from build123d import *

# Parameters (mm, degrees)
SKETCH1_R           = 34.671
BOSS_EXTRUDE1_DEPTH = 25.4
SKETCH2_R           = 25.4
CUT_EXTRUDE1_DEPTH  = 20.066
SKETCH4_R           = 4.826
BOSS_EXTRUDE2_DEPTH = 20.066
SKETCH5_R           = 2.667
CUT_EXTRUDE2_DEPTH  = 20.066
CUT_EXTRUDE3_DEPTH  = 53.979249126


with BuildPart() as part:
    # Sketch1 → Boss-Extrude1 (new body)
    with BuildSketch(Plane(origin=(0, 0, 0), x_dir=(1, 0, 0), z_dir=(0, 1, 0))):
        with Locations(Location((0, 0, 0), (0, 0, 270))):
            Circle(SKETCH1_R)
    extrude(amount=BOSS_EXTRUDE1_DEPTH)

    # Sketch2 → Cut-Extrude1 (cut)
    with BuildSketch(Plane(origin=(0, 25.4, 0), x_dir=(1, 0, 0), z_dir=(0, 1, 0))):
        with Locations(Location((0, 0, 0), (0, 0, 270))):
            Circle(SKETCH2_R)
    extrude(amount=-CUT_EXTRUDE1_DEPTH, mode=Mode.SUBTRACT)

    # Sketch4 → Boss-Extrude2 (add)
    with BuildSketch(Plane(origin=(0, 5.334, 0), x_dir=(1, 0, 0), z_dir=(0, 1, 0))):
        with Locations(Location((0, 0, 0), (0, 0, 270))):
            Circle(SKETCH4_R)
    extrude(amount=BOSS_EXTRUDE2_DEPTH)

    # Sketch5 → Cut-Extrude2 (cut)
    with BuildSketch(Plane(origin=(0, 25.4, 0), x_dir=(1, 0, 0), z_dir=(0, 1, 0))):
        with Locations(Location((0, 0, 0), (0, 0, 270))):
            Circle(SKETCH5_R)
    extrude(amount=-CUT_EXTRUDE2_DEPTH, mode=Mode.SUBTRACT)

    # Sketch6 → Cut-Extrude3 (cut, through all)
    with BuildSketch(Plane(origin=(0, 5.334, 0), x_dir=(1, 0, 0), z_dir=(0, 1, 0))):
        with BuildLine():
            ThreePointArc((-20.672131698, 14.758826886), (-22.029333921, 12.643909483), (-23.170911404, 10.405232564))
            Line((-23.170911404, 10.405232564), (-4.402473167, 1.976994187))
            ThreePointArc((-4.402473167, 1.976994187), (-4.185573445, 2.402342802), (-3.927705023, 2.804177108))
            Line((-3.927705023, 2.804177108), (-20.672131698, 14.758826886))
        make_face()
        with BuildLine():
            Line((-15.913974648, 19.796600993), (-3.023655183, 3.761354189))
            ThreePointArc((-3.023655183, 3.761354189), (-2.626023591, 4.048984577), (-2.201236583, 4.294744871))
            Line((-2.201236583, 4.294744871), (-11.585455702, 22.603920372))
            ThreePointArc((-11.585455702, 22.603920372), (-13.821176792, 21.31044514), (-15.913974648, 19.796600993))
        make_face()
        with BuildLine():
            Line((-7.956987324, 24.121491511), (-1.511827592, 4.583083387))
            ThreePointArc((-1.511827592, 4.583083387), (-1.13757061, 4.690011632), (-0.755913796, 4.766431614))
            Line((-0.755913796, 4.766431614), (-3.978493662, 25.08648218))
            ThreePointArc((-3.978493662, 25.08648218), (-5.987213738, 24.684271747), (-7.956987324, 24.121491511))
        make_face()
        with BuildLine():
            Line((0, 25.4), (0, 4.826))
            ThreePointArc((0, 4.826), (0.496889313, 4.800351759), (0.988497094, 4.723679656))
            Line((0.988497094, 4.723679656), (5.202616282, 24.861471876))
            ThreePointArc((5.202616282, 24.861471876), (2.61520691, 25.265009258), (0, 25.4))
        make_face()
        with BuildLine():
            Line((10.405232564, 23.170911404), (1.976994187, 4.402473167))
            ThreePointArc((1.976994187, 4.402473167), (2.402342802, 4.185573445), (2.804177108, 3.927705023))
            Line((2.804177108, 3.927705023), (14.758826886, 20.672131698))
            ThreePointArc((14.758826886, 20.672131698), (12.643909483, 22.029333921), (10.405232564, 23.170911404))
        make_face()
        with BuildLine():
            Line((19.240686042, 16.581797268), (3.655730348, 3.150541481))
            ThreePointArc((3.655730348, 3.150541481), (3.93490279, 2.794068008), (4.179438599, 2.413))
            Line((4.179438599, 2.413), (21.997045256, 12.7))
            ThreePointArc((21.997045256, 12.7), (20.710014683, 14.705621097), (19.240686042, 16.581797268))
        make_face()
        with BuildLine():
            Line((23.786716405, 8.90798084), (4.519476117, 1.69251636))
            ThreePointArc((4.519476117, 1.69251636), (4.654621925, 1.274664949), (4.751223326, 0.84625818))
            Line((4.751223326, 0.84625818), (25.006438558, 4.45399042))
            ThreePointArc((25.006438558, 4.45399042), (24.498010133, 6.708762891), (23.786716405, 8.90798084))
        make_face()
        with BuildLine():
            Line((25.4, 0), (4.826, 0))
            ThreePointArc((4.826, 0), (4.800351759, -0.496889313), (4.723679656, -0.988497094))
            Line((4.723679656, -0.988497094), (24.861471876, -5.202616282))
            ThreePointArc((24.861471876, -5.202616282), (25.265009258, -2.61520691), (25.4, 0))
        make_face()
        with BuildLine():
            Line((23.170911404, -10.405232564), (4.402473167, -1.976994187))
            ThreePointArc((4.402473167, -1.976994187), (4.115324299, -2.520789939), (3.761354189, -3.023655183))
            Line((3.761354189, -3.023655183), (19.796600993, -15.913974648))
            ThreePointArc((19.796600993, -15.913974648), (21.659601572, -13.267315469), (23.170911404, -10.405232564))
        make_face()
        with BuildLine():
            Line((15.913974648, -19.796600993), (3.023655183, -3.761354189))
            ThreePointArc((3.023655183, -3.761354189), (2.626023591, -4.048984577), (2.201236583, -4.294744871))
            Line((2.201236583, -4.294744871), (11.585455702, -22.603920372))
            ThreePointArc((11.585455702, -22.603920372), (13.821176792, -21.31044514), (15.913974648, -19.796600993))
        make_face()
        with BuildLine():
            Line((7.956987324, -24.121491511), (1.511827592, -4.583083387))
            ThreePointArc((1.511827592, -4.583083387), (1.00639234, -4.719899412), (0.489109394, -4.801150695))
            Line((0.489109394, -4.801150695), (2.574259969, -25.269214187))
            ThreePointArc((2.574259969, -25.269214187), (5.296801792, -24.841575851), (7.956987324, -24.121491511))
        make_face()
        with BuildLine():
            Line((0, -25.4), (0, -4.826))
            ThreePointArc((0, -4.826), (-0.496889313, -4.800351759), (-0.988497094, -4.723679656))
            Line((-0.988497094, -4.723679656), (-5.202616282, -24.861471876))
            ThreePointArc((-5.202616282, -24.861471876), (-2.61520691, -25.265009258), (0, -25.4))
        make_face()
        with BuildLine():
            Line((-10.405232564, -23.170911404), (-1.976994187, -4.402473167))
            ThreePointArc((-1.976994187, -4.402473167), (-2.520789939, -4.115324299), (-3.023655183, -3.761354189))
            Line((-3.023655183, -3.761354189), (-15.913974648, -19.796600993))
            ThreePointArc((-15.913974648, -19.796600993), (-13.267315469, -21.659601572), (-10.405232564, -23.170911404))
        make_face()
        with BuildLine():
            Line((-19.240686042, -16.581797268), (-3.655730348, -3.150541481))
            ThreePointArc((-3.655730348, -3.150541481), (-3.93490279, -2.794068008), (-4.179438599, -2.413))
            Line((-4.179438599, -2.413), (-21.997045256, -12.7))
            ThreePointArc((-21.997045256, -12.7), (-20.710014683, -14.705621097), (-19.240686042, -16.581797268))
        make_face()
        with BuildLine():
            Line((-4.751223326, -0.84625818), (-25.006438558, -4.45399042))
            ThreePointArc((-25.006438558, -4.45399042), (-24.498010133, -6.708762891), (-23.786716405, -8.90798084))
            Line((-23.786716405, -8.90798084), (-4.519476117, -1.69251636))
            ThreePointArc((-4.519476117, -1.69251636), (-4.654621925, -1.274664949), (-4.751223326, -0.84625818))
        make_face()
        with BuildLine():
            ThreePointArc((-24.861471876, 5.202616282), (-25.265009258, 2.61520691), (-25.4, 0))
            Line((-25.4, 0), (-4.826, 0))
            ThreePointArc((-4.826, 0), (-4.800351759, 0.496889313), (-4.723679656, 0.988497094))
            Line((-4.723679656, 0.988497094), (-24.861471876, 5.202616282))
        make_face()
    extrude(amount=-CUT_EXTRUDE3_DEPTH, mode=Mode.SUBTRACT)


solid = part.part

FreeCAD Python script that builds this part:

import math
import FreeCAD as App
import Part
import Sketcher

V = App.Vector
Q = App.Units.Quantity

doc = App.newDocument("Part")
body = doc.addObject("PartDesign::Body", "Body")

# Sketch on XZ plane
sketch1 = body.newObject("Sketcher::SketchObject", "Sketch")
sketch1.AttachmentSupport = (doc.getObject("XZ_Plane"), [""])
sketch1.MapMode = "FlatFace"
sketch1.addGeometry(Part.Circle(V(0, 0, 0), V(0, 0, 1), 34.671), False)
sketch1.addConstraint([
    Sketcher.Constraint("Coincident", 0, 3, -1, 1),
    Sketcher.Constraint("Diameter", 0, Q("2.73 in")),
])
pad1 = body.newObject("PartDesign::Pad", "Pad")
pad1.Profile = sketch1
pad1.Length = Q("1 in")
pad1.Reversed = True

# Sketch on XZ plane
sketch2 = body.newObject("Sketcher::SketchObject", "Sketch001")
sketch2.AttachmentSupport = (doc.getObject("XZ_Plane"), [""])
sketch2.MapMode = "FlatFace"
sketch2.AttachmentOffset = App.Placement(V(0, 0, -1 * 25.4), App.Rotation())
sketch2.addGeometry(Part.Circle(V(0, 0, 0), V(0, 0, 1), 25.4), False)
sketch2.addConstraint([
    Sketcher.Constraint("Coincident", 0, 3, -1, 1),
    Sketcher.Constraint("Diameter", 0, Q("2 in")),
])
pocket1 = body.newObject("PartDesign::Pocket", "Pocket")
pocket1.Profile = sketch2
pocket1.Length = Q("0.79 in")
pocket1.Reversed = True

# Sketch on XZ plane
sketch3 = body.newObject("Sketcher::SketchObject", "Sketch002")
sketch3.AttachmentSupport = (doc.getObject("XZ_Plane"), [""])
sketch3.MapMode = "FlatFace"
sketch3.AttachmentOffset = App.Placement(V(0, 0, -0.21 * 25.4), App.Rotation())
sketch3.addGeometry(Part.Circle(V(0, 0, 0), V(0, 0, 1), 4.826), False)
sketch3.addConstraint([
    Sketcher.Constraint("Coincident", 0, 3, -1, 1),
    Sketcher.Constraint("Diameter", 0, Q("0.38 in")),
])
pad2 = body.newObject("PartDesign::Pad", "Pad001")
pad2.Profile = sketch3
pad2.Length = Q("0.79 in")
pad2.Reversed = True

# Sketch on XZ plane
sketch4 = body.newObject("Sketcher::SketchObject", "Sketch003")
sketch4.AttachmentSupport = (doc.getObject("XZ_Plane"), [""])
sketch4.MapMode = "FlatFace"
sketch4.AttachmentOffset = App.Placement(V(0, 0, -1 * 25.4), App.Rotation())
sketch4.addGeometry(Part.Circle(V(0, 0, 0), V(0, 0, 1), 2.667), False)
sketch4.addConstraint([
    Sketcher.Constraint("Coincident", 0, 3, -1, 1),
    Sketcher.Constraint("Diameter", 0, Q("0.21 in")),
])
pocket2 = body.newObject("PartDesign::Pocket", "Pocket001")
pocket2.Profile = sketch4
pocket2.Length = Q("0.79 in")
pocket2.Reversed = True

# Sketch on XZ plane
sketch5 = body.newObject("Sketcher::SketchObject", "Sketch004")
sketch5.AttachmentSupport = (doc.getObject("XZ_Plane"), [""])
sketch5.MapMode = "FlatFace"
sketch5.AttachmentOffset = App.Placement(V(0, 0, -0.21 * 25.4), App.Rotation())
sketch5.addGeometry([
    Part.ArcOfCircle(Part.Circle(V(0, 0, 0), V(0, 0, 1), 25.4), math.radians(-155.816847), math.radians(-144.475137)),  # 0
    Part.LineSegment(V(-23.170911, -10.405233, 0), V(-4.402473, -1.976994, 0)),  # 1
    Part.ArcOfCircle(Part.Circle(V(0, 0, 0), V(0, 0, 1), 4.826), math.radians(-155.816847), math.radians(-144.475137)),  # 2
    Part.LineSegment(V(-3.927705, -2.804177, 0), V(-20.672132, -14.758827, 0)),  # 3
    Part.LineSegment(V(-15.913975, -19.796601, 0), V(-3.023655, -3.761354, 0)),  # 4
    Part.ArcOfCircle(Part.Circle(V(0, 0, 0), V(0, 0, 1), 4.826), math.radians(-128.7949), math.radians(-117.13704)),  # 5
    Part.LineSegment(V(-2.201237, -4.294745, 0), V(-11.585456, -22.60392, 0)),  # 6
    Part.ArcOfCircle(Part.Circle(V(0, 0, 0), V(0, 0, 1), 25.4), math.radians(-128.7949), math.radians(-117.13704)),  # 7
    Part.LineSegment(V(-7.956987, -24.121492, 0), V(-1.511828, -4.583083, 0)),  # 8
    Part.ArcOfCircle(Part.Circle(V(0, 0, 0), V(0, 0, 1), 4.826), math.radians(-108.256239), math.radians(-99.011552)),  # 9
    Part.LineSegment(V(-0.755914, -4.766432, 0), V(-3.978494, -25.086482, 0)),  # 10
    Part.ArcOfCircle(Part.Circle(V(0, 0, 0), V(0, 0, 1), 25.4), math.radians(-108.256239), math.radians(-99.011552)),  # 11
    Part.LineSegment(V(0, -25.4, 0), V(0, -4.826, 0)),  # 12
    Part.ArcOfCircle(Part.Circle(V(0, 0, 0), V(0, 0, 1), 4.826), math.radians(-90), math.radians(-78.180604)),  # 13
    Part.LineSegment(V(0.988497, -4.72368, 0), V(5.202616, -24.861472, 0)),  # 14
    Part.ArcOfCircle(Part.Circle(V(0, 0, 0), V(0, 0, 1), 25.4), math.radians(-90), math.radians(-78.180604)),  # 15
    Part.LineSegment(V(10.405233, -23.170911, 0), V(1.976994, -4.402473, 0)),  # 16
    Part.ArcOfCircle(Part.Circle(V(0, 0, 0), V(0, 0, 1), 4.826), math.radians(-65.816847), math.radians(-54.475137)),  # 17
    Part.LineSegment(V(2.804177, -3.927705, 0), V(14.758827, -20.672132, 0)),  # 18
    Part.ArcOfCircle(Part.Circle(V(0, 0, 0), V(0, 0, 1), 25.4), math.radians(-65.816847), math.radians(-54.475137)),  # 19
    Part.LineSegment(V(19.240686, -16.581797, 0), V(3.65573, -3.150541, 0)),  # 20
    Part.ArcOfCircle(Part.Circle(V(0, 0, 0), V(0, 0, 1), 4.826), math.radians(-40.755061), math.radians(-30)),  # 21
    Part.LineSegment(V(4.179439, -2.413, 0), V(21.997045, -12.7, 0)),  # 22
    Part.ArcOfCircle(Part.Circle(V(0, 0, 0), V(0, 0, 1), 25.4), math.radians(-40.755061), math.radians(-30)),  # 23
    Part.LineSegment(V(23.786716, -8.907981, 0), V(4.519476, -1.692516, 0)),  # 24
    Part.ArcOfCircle(Part.Circle(V(0, 0, 0), V(0, 0, 1), 4.826), math.radians(-20.53062), math.radians(-10.099257)),  # 25
    Part.LineSegment(V(4.751223, -0.846258, 0), V(25.006439, -4.45399, 0)),  # 26
    Part.ArcOfCircle(Part.Circle(V(0, 0, 0), V(0, 0, 1), 25.4), math.radians(-20.53062), math.radians(-10.099257)),  # 27
    Part.LineSegment(V(25.4, 0, 0), V(4.826, 0, 0)),  # 28
    Part.ArcOfCircle(Part.Circle(V(0, 0, 0), V(0, 0, 1), 4.826), math.radians(0), math.radians(11.819396)),  # 29
    Part.LineSegment(V(4.72368, 0.988497, 0), V(24.861472, 5.202616, 0)),  # 30
    Part.ArcOfCircle(Part.Circle(V(0, 0, 0), V(0, 0, 1), 25.4), math.radians(0), math.radians(11.819396)),  # 31
    Part.LineSegment(V(23.170911, 10.405233, 0), V(4.402473, 1.976994, 0)),  # 32
    Part.ArcOfCircle(Part.Circle(V(0, 0, 0), V(0, 0, 1), 4.826), math.radians(24.183153), math.radians(38.7949)),  # 33
    Part.LineSegment(V(3.761354, 3.023655, 0), V(19.796601, 15.913975, 0)),  # 34
    Part.ArcOfCircle(Part.Circle(V(0, 0, 0), V(0, 0, 1), 25.4), math.radians(24.183153), math.radians(38.7949)),  # 35
    Part.LineSegment(V(15.913975, 19.796601, 0), V(3.023655, 3.761354, 0)),  # 36
    Part.ArcOfCircle(Part.Circle(V(0, 0, 0), V(0, 0, 1), 4.826), math.radians(51.2051), math.radians(62.86296)),  # 37
    Part.LineSegment(V(2.201237, 4.294745, 0), V(11.585456, 22.60392, 0)),  # 38
    Part.ArcOfCircle(Part.Circle(V(0, 0, 0), V(0, 0, 1), 25.4), math.radians(51.2051), math.radians(62.86296)),  # 39
    Part.LineSegment(V(7.956987, 24.121492, 0), V(1.511828, 4.583083, 0)),  # 40
    Part.ArcOfCircle(Part.Circle(V(0, 0, 0), V(0, 0, 1), 4.826), math.radians(71.743761), math.radians(84.183153)),  # 41
    Part.LineSegment(V(0.489109, 4.801151, 0), V(2.57426, 25.269214, 0)),  # 42
    Part.ArcOfCircle(Part.Circle(V(0, 0, 0), V(0, 0, 1), 25.4), math.radians(71.743761), math.radians(84.183153)),  # 43
    Part.LineSegment(V(0, 25.4, 0), V(0, 4.826, 0)),  # 44
    Part.ArcOfCircle(Part.Circle(V(0, 0, 0), V(0, 0, 1), 4.826), math.radians(90), math.radians(101.819396)),  # 45
    Part.LineSegment(V(-0.988497, 4.72368, 0), V(-5.202616, 24.861472, 0)),  # 46
    Part.ArcOfCircle(Part.Circle(V(0, 0, 0), V(0, 0, 1), 25.4), math.radians(90), math.radians(101.819396)),  # 47
    Part.LineSegment(V(-10.405233, 23.170911, 0), V(-1.976994, 4.402473, 0)),  # 48
    Part.ArcOfCircle(Part.Circle(V(0, 0, 0), V(0, 0, 1), 4.826), math.radians(114.183153), math.radians(128.7949)),  # 49
    Part.LineSegment(V(-3.023655, 3.761354, 0), V(-15.913975, 19.796601, 0)),  # 50
    Part.ArcOfCircle(Part.Circle(V(0, 0, 0), V(0, 0, 1), 25.4), math.radians(114.183153), math.radians(128.7949)),  # 51
    Part.LineSegment(V(-19.240686, 16.581797, 0), V(-3.65573, 3.150541, 0)),  # 52
    Part.ArcOfCircle(Part.Circle(V(0, 0, 0), V(0, 0, 1), 4.826), math.radians(139.244939), math.radians(150)),  # 53
    Part.LineSegment(V(-4.179439, 2.413, 0), V(-21.997045, 12.7, 0)),  # 54
    Part.ArcOfCircle(Part.Circle(V(0, 0, 0), V(0, 0, 1), 25.4), math.radians(139.244939), math.radians(150)),  # 55
    Part.LineSegment(V(-4.751223, 0.846258, 0), V(-25.006439, 4.45399, 0)),  # 56
    Part.ArcOfCircle(Part.Circle(V(0, 0, 0), V(0, 0, 1), 25.4), math.radians(159.46938), math.radians(169.900743)),  # 57
    Part.LineSegment(V(-23.786716, 8.907981, 0), V(-4.519476, 1.692516, 0)),  # 58
    Part.ArcOfCircle(Part.Circle(V(0, 0, 0), V(0, 0, 1), 4.826), math.radians(159.46938), math.radians(169.900743)),  # 59
    Part.ArcOfCircle(Part.Circle(V(0, 0, 0), V(0, 0, 1), 25.4), math.radians(-180), math.radians(-168.180604)),  # 60
    Part.LineSegment(V(-25.4, 0, 0), V(-4.826, 0, 0)),  # 61
    Part.ArcOfCircle(Part.Circle(V(0, 0, 0), V(0, 0, 1), 4.826), math.radians(180), math.radians(191.819396)),  # 62
    Part.LineSegment(V(-4.72368, -0.988497, 0), V(-24.861472, -5.202616, 0)),  # 63
], False)
sketch5.addConstraint([
    Sketcher.Constraint("Coincident", 0, 1, 1, 1),
    Sketcher.Constraint("Coincident", 1, 2, 2, 1),
    Sketcher.Constraint("Coincident", 2, 2, 3, 1),
    Sketcher.Constraint("Coincident", 3, 2, 0, 2),
    Sketcher.Constraint("Coincident", 4, 2, 5, 1),
    Sketcher.Constraint("Coincident", 5, 2, 6, 1),
    Sketcher.Constraint("Coincident", 6, 2, 7, 2),
    Sketcher.Constraint("Coincident", 7, 1, 4, 1),
    Sketcher.Constraint("Coincident", 8, 2, 9, 1),
    Sketcher.Constraint("Coincident", 9, 2, 10, 1),
    Sketcher.Constraint("Coincident", 10, 2, 11, 2),
    Sketcher.Constraint("Coincident", 11, 1, 8, 1),
    Sketcher.Constraint("Coincident", 12, 2, 13, 1),
    Sketcher.Constraint("Coincident", 13, 2, 14, 1),
    Sketcher.Constraint("Coincident", 14, 2, 15, 2),
    Sketcher.Constraint("Coincident", 15, 1, 12, 1),
    Sketcher.Constraint("Coincident", 16, 2, 17, 1),
    Sketcher.Constraint("Coincident", 17, 2, 18, 1),
    Sketcher.Constraint("Coincident", 18, 2, 19, 2),
    Sketcher.Constraint("Coincident", 19, 1, 16, 1),
    Sketcher.Constraint("Coincident", 20, 2, 21, 1),
    Sketcher.Constraint("Coincident", 21, 2, 22, 1),
    Sketcher.Constraint("Coincident", 22, 2, 23, 2),
    Sketcher.Constraint("Coincident", 23, 1, 20, 1),
    Sketcher.Constraint("Coincident", 24, 2, 25, 1),
    Sketcher.Constraint("Coincident", 25, 2, 26, 1),
    Sketcher.Constraint("Coincident", 26, 2, 27, 2),
    Sketcher.Constraint("Coincident", 27, 1, 24, 1),
    Sketcher.Constraint("Coincident", 28, 2, 29, 1),
    Sketcher.Constraint("Coincident", 29, 2, 30, 1),
    Sketcher.Constraint("Coincident", 30, 2, 31, 2),
    Sketcher.Constraint("Coincident", 31, 1, 28, 1),
    Sketcher.Constraint("Coincident", 32, 2, 33, 1),
    Sketcher.Constraint("Coincident", 33, 2, 34, 1),
    Sketcher.Constraint("Coincident", 34, 2, 35, 2),
    Sketcher.Constraint("Coincident", 35, 1, 32, 1),
    Sketcher.Constraint("Coincident", 36, 2, 37, 1),
    Sketcher.Constraint("Coincident", 37, 2, 38, 1),
    Sketcher.Constraint("Coincident", 38, 2, 39, 2),
    Sketcher.Constraint("Coincident", 39, 1, 36, 1),
    Sketcher.Constraint("Coincident", 40, 2, 41, 1),
    Sketcher.Constraint("Coincident", 41, 2, 42, 1),
    Sketcher.Constraint("Coincident", 42, 2, 43, 2),
    Sketcher.Constraint("Coincident", 43, 1, 40, 1),
    Sketcher.Constraint("Coincident", 44, 2, 45, 1),
    Sketcher.Constraint("Coincident", 45, 2, 46, 1),
    Sketcher.Constraint("Coincident", 46, 2, 47, 2),
    Sketcher.Constraint("Coincident", 47, 1, 44, 1),
    Sketcher.Constraint("Coincident", 48, 2, 49, 1),
    Sketcher.Constraint("Coincident", 49, 2, 50, 1),
    Sketcher.Constraint("Coincident", 50, 2, 51, 2),
    Sketcher.Constraint("Coincident", 51, 1, 48, 1),
    Sketcher.Constraint("Coincident", 52, 2, 53, 1),
    Sketcher.Constraint("Coincident", 53, 2, 54, 1),
    Sketcher.Constraint("Coincident", 54, 2, 55, 2),
    Sketcher.Constraint("Coincident", 55, 1, 52, 1),
    Sketcher.Constraint("Coincident", 56, 2, 57, 2),
    Sketcher.Constraint("Coincident", 57, 1, 58, 1),
    Sketcher.Constraint("Coincident", 58, 2, 59, 1),
    Sketcher.Constraint("Coincident", 59, 2, 56, 1),
    Sketcher.Constraint("Coincident", 60, 1, 61, 1),
    Sketcher.Constraint("Coincident", 61, 2, 62, 1),
    Sketcher.Constraint("Coincident", 62, 2, 63, 1),
    Sketcher.Constraint("Coincident", 63, 2, 60, 2),
    Sketcher.Constraint("Vertical", 12),
    Sketcher.Constraint("Horizontal", 28),
    Sketcher.Constraint("Vertical", 44),
    Sketcher.Constraint("Horizontal", 61),
    Sketcher.Constraint("Coincident", 0, 3, -1, 1),
    Sketcher.Constraint("Coincident", 2, 3, -1, 1),
    Sketcher.Constraint("Coincident", 5, 3, -1, 1),
    Sketcher.Constraint("Coincident", 7, 3, -1, 1),
    Sketcher.Constraint("Coincident", 9, 3, -1, 1),
    Sketcher.Constraint("Coincident", 11, 3, -1, 1),
    Sketcher.Constraint("Coincident", 13, 3, -1, 1),
    Sketcher.Constraint("Coincident", 15, 3, -1, 1),
    Sketcher.Constraint("Coincident", 17, 3, -1, 1),
    Sketcher.Constraint("Coincident", 19, 3, -1, 1),
    Sketcher.Constraint("Coincident", 21, 3, -1, 1),
    Sketcher.Constraint("Coincident", 23, 3, -1, 1),
    Sketcher.Constraint("Coincident", 25, 3, -1, 1),
    Sketcher.Constraint("Coincident", 27, 3, -1, 1),
    Sketcher.Constraint("Coincident", 29, 3, -1, 1),
    Sketcher.Constraint("Coincident", 31, 3, -1, 1),
    Sketcher.Constraint("Coincident", 33, 3, -1, 1),
    Sketcher.Constraint("Coincident", 35, 3, -1, 1),
    Sketcher.Constraint("Coincident", 37, 3, -1, 1),
    Sketcher.Constraint("Coincident", 39, 3, -1, 1),
    Sketcher.Constraint("Coincident", 41, 3, -1, 1),
    Sketcher.Constraint("Coincident", 43, 3, -1, 1),
    Sketcher.Constraint("Coincident", 45, 3, -1, 1),
    Sketcher.Constraint("Coincident", 47, 3, -1, 1),
    Sketcher.Constraint("Coincident", 49, 3, -1, 1),
    Sketcher.Constraint("Coincident", 51, 3, -1, 1),
    Sketcher.Constraint("Coincident", 53, 3, -1, 1),
    Sketcher.Constraint("Coincident", 55, 3, -1, 1),
    Sketcher.Constraint("Coincident", 57, 3, -1, 1),
    Sketcher.Constraint("Coincident", 59, 3, -1, 1),
    Sketcher.Constraint("Coincident", 60, 3, -1, 1),
    Sketcher.Constraint("Coincident", 62, 3, -1, 1),
    Sketcher.Constraint("Equal", 2, 5),
    Sketcher.Constraint("Equal", 0, 7),
    Sketcher.Constraint("Equal", 5, 9),
    Sketcher.Constraint("Equal", 7, 11),
    Sketcher.Constraint("Equal", 9, 13),
    Sketcher.Constraint("Equal", 11, 15),
    Sketcher.Constraint("Equal", 13, 17),
    Sketcher.Constraint("Equal", 15, 19),
    Sketcher.Constraint("Equal", 17, 21),
    Sketcher.Constraint("Equal", 19, 23),
    Sketcher.Constraint("Equal", 21, 25),
    Sketcher.Constraint("Equal", 23, 27),
    Sketcher.Constraint("Equal", 25, 29),
    Sketcher.Constraint("Equal", 27, 31),
    Sketcher.Constraint("Equal", 29, 33),
    Sketcher.Constraint("Equal", 31, 35),
    Sketcher.Constraint("Equal", 33, 37),
    Sketcher.Constraint("Equal", 35, 39),
    Sketcher.Constraint("Equal", 37, 41),
    Sketcher.Constraint("Equal", 39, 43),
    Sketcher.Constraint("Equal", 41, 45),
    Sketcher.Constraint("Equal", 43, 47),
    Sketcher.Constraint("Equal", 45, 49),
    Sketcher.Constraint("Equal", 47, 51),
    Sketcher.Constraint("Equal", 49, 53),
    Sketcher.Constraint("Equal", 51, 55),
    Sketcher.Constraint("Equal", 55, 57),
    Sketcher.Constraint("Equal", 53, 59),
    Sketcher.Constraint("Equal", 57, 60),
    Sketcher.Constraint("Equal", 59, 62),
    Sketcher.Constraint("PointOnObject", 12, 2, -2),
    Sketcher.Constraint("PointOnObject", 28, 2, -1),
    Sketcher.Constraint("PointOnObject", 44, 2, -2),
    Sketcher.Constraint("PointOnObject", 60, 1, -1),
    Sketcher.Constraint("Perpendicular", 1, 16),
    Sketcher.Constraint("Perpendicular", 3, 18),
    Sketcher.Constraint("Perpendicular", 14, 30),
    Sketcher.Constraint("Perpendicular", 16, 32),
    Sketcher.Constraint("Parallel", 4, 36),
    Sketcher.Constraint("Parallel", 6, 38),
    Sketcher.Constraint("Parallel", 8, 40),
    Sketcher.Constraint("Perpendicular", 30, 46),
    Sketcher.Constraint("Perpendicular", 32, 48),
    Sketcher.Constraint("Perpendicular", 34, 50),
    Sketcher.Constraint("Parallel", 20, 52),
    Sketcher.Constraint("Parallel", 22, 54),
    Sketcher.Constraint("Parallel", 26, 56),
    Sketcher.Constraint("Parallel", 24, 58),
    Sketcher.Constraint("Perpendicular", 46, 63),
    Sketcher.Constraint("Horizontal", 36, 2, 49, 2),
    Sketcher.Constraint("Horizontal", 39, 1, 50, 2),
    Sketcher.Constraint("Vertical", 4, 2, 49, 2),
    Sketcher.Constraint("Radius", 0, Q("1 in")),
    Sketcher.Constraint("Radius", 2, Q("0.19 in")),
    Sketcher.Constraint("Angle", 22, Q("-30 deg")),
    Sketcher.Constraint("DistanceY", 22, 2, -1, 1, Q("0.5 in")),
    Sketcher.Constraint("DistanceY", -1, 1, 54, 2, Q("0.5 in")),
    Sketcher.Constraint("DistanceY", 7, 1, -1, 1, 19.796601),
    Sketcher.Constraint("DistanceX", -1, 1, 34, 2, 19.796601),
    Sketcher.Constraint("DistanceX", 0, 1, -1, 1, 23.170911),
    Sketcher.Constraint("DistanceX", 3, 2, -1, 1, 20.672132),
    Sketcher.Constraint("DistanceY", 6, 2, -1, 1, 22.60392),
    Sketcher.Constraint("DistanceY", 9, 2, -1, 1, 4.766432),
    Sketcher.Constraint("DistanceY", 11, 1, -1, 1, 24.121492),
    Sketcher.Constraint("DistanceY", 13, 2, -1, 1, 4.72368),
    Sketcher.Constraint("DistanceY", 14, 2, -1, 1, 24.861472),
    Sketcher.Constraint("DistanceY", 18, 2, -1, 1, 20.672132),
    Sketcher.Constraint("DistanceY", 19, 1, -1, 1, 23.170911),
    Sketcher.Constraint("DistanceX", -1, 1, 20, 2, 3.65573),
    Sketcher.Constraint("DistanceY", 25, 2, -1, 1, 0.846258),
    Sketcher.Constraint("DistanceX", -1, 1, 26, 2, 25.006439),
    Sketcher.Constraint("DistanceY", 27, 1, -1, 1, 8.907981),
    Sketcher.Constraint("DistanceX", -1, 1, 29, 2, 4.72368),
    Sketcher.Constraint("DistanceX", -1, 1, 35, 1, 23.170911),
    Sketcher.Constraint("DistanceY", -1, 1, 38, 2, 22.60392),
    Sketcher.Constraint("DistanceX", -1, 1, 41, 2, 0.489109),
    Sketcher.Constraint("DistanceX", -1, 1, 42, 2, 2.57426),
    Sketcher.Constraint("DistanceY", -1, 1, 43, 1, 24.121492),
    Sketcher.Constraint("DistanceY", -1, 1, 45, 2, 4.72368),
    Sketcher.Constraint("DistanceY", -1, 1, 51, 1, 23.170911),
    Sketcher.Constraint("DistanceX", 52, 2, -1, 1, 3.65573),
    Sketcher.Constraint("DistanceX", 56, 2, -1, 1, 25.006439),
    Sketcher.Constraint("DistanceY", -1, 1, 57, 1, 8.907981),
    Sketcher.Constraint("DistanceX", 62, 2, -1, 1, 4.72368),
    Sketcher.Constraint("DistanceX", 1, 2, -1, 1, 4.402473),
    Sketcher.Constraint("DistanceX", 2, 2, -1, 1, 3.927705),
    Sketcher.Constraint("DistanceX", 4, 2, -1, 1, 3.023655),
    Sketcher.Constraint("DistanceX", 5, 2, -1, 1, 2.201237),
    Sketcher.Constraint("DistanceX", 8, 2, -1, 1, 1.511828),
    Sketcher.Constraint("DistanceX", 10, 2, -1, 1, 3.978494),
    Sketcher.Constraint("DistanceX", -1, 1, 23, 1, 19.240686),
    Sketcher.Constraint("DistanceX", -1, 1, 24, 2, 4.519476),
])
pocket3 = body.newObject("PartDesign::Pocket", "Pocket002")
pocket3.Profile = sketch5
pocket3.Type = "ThroughAll"
pocket3.Reversed = True

doc.recompute()
